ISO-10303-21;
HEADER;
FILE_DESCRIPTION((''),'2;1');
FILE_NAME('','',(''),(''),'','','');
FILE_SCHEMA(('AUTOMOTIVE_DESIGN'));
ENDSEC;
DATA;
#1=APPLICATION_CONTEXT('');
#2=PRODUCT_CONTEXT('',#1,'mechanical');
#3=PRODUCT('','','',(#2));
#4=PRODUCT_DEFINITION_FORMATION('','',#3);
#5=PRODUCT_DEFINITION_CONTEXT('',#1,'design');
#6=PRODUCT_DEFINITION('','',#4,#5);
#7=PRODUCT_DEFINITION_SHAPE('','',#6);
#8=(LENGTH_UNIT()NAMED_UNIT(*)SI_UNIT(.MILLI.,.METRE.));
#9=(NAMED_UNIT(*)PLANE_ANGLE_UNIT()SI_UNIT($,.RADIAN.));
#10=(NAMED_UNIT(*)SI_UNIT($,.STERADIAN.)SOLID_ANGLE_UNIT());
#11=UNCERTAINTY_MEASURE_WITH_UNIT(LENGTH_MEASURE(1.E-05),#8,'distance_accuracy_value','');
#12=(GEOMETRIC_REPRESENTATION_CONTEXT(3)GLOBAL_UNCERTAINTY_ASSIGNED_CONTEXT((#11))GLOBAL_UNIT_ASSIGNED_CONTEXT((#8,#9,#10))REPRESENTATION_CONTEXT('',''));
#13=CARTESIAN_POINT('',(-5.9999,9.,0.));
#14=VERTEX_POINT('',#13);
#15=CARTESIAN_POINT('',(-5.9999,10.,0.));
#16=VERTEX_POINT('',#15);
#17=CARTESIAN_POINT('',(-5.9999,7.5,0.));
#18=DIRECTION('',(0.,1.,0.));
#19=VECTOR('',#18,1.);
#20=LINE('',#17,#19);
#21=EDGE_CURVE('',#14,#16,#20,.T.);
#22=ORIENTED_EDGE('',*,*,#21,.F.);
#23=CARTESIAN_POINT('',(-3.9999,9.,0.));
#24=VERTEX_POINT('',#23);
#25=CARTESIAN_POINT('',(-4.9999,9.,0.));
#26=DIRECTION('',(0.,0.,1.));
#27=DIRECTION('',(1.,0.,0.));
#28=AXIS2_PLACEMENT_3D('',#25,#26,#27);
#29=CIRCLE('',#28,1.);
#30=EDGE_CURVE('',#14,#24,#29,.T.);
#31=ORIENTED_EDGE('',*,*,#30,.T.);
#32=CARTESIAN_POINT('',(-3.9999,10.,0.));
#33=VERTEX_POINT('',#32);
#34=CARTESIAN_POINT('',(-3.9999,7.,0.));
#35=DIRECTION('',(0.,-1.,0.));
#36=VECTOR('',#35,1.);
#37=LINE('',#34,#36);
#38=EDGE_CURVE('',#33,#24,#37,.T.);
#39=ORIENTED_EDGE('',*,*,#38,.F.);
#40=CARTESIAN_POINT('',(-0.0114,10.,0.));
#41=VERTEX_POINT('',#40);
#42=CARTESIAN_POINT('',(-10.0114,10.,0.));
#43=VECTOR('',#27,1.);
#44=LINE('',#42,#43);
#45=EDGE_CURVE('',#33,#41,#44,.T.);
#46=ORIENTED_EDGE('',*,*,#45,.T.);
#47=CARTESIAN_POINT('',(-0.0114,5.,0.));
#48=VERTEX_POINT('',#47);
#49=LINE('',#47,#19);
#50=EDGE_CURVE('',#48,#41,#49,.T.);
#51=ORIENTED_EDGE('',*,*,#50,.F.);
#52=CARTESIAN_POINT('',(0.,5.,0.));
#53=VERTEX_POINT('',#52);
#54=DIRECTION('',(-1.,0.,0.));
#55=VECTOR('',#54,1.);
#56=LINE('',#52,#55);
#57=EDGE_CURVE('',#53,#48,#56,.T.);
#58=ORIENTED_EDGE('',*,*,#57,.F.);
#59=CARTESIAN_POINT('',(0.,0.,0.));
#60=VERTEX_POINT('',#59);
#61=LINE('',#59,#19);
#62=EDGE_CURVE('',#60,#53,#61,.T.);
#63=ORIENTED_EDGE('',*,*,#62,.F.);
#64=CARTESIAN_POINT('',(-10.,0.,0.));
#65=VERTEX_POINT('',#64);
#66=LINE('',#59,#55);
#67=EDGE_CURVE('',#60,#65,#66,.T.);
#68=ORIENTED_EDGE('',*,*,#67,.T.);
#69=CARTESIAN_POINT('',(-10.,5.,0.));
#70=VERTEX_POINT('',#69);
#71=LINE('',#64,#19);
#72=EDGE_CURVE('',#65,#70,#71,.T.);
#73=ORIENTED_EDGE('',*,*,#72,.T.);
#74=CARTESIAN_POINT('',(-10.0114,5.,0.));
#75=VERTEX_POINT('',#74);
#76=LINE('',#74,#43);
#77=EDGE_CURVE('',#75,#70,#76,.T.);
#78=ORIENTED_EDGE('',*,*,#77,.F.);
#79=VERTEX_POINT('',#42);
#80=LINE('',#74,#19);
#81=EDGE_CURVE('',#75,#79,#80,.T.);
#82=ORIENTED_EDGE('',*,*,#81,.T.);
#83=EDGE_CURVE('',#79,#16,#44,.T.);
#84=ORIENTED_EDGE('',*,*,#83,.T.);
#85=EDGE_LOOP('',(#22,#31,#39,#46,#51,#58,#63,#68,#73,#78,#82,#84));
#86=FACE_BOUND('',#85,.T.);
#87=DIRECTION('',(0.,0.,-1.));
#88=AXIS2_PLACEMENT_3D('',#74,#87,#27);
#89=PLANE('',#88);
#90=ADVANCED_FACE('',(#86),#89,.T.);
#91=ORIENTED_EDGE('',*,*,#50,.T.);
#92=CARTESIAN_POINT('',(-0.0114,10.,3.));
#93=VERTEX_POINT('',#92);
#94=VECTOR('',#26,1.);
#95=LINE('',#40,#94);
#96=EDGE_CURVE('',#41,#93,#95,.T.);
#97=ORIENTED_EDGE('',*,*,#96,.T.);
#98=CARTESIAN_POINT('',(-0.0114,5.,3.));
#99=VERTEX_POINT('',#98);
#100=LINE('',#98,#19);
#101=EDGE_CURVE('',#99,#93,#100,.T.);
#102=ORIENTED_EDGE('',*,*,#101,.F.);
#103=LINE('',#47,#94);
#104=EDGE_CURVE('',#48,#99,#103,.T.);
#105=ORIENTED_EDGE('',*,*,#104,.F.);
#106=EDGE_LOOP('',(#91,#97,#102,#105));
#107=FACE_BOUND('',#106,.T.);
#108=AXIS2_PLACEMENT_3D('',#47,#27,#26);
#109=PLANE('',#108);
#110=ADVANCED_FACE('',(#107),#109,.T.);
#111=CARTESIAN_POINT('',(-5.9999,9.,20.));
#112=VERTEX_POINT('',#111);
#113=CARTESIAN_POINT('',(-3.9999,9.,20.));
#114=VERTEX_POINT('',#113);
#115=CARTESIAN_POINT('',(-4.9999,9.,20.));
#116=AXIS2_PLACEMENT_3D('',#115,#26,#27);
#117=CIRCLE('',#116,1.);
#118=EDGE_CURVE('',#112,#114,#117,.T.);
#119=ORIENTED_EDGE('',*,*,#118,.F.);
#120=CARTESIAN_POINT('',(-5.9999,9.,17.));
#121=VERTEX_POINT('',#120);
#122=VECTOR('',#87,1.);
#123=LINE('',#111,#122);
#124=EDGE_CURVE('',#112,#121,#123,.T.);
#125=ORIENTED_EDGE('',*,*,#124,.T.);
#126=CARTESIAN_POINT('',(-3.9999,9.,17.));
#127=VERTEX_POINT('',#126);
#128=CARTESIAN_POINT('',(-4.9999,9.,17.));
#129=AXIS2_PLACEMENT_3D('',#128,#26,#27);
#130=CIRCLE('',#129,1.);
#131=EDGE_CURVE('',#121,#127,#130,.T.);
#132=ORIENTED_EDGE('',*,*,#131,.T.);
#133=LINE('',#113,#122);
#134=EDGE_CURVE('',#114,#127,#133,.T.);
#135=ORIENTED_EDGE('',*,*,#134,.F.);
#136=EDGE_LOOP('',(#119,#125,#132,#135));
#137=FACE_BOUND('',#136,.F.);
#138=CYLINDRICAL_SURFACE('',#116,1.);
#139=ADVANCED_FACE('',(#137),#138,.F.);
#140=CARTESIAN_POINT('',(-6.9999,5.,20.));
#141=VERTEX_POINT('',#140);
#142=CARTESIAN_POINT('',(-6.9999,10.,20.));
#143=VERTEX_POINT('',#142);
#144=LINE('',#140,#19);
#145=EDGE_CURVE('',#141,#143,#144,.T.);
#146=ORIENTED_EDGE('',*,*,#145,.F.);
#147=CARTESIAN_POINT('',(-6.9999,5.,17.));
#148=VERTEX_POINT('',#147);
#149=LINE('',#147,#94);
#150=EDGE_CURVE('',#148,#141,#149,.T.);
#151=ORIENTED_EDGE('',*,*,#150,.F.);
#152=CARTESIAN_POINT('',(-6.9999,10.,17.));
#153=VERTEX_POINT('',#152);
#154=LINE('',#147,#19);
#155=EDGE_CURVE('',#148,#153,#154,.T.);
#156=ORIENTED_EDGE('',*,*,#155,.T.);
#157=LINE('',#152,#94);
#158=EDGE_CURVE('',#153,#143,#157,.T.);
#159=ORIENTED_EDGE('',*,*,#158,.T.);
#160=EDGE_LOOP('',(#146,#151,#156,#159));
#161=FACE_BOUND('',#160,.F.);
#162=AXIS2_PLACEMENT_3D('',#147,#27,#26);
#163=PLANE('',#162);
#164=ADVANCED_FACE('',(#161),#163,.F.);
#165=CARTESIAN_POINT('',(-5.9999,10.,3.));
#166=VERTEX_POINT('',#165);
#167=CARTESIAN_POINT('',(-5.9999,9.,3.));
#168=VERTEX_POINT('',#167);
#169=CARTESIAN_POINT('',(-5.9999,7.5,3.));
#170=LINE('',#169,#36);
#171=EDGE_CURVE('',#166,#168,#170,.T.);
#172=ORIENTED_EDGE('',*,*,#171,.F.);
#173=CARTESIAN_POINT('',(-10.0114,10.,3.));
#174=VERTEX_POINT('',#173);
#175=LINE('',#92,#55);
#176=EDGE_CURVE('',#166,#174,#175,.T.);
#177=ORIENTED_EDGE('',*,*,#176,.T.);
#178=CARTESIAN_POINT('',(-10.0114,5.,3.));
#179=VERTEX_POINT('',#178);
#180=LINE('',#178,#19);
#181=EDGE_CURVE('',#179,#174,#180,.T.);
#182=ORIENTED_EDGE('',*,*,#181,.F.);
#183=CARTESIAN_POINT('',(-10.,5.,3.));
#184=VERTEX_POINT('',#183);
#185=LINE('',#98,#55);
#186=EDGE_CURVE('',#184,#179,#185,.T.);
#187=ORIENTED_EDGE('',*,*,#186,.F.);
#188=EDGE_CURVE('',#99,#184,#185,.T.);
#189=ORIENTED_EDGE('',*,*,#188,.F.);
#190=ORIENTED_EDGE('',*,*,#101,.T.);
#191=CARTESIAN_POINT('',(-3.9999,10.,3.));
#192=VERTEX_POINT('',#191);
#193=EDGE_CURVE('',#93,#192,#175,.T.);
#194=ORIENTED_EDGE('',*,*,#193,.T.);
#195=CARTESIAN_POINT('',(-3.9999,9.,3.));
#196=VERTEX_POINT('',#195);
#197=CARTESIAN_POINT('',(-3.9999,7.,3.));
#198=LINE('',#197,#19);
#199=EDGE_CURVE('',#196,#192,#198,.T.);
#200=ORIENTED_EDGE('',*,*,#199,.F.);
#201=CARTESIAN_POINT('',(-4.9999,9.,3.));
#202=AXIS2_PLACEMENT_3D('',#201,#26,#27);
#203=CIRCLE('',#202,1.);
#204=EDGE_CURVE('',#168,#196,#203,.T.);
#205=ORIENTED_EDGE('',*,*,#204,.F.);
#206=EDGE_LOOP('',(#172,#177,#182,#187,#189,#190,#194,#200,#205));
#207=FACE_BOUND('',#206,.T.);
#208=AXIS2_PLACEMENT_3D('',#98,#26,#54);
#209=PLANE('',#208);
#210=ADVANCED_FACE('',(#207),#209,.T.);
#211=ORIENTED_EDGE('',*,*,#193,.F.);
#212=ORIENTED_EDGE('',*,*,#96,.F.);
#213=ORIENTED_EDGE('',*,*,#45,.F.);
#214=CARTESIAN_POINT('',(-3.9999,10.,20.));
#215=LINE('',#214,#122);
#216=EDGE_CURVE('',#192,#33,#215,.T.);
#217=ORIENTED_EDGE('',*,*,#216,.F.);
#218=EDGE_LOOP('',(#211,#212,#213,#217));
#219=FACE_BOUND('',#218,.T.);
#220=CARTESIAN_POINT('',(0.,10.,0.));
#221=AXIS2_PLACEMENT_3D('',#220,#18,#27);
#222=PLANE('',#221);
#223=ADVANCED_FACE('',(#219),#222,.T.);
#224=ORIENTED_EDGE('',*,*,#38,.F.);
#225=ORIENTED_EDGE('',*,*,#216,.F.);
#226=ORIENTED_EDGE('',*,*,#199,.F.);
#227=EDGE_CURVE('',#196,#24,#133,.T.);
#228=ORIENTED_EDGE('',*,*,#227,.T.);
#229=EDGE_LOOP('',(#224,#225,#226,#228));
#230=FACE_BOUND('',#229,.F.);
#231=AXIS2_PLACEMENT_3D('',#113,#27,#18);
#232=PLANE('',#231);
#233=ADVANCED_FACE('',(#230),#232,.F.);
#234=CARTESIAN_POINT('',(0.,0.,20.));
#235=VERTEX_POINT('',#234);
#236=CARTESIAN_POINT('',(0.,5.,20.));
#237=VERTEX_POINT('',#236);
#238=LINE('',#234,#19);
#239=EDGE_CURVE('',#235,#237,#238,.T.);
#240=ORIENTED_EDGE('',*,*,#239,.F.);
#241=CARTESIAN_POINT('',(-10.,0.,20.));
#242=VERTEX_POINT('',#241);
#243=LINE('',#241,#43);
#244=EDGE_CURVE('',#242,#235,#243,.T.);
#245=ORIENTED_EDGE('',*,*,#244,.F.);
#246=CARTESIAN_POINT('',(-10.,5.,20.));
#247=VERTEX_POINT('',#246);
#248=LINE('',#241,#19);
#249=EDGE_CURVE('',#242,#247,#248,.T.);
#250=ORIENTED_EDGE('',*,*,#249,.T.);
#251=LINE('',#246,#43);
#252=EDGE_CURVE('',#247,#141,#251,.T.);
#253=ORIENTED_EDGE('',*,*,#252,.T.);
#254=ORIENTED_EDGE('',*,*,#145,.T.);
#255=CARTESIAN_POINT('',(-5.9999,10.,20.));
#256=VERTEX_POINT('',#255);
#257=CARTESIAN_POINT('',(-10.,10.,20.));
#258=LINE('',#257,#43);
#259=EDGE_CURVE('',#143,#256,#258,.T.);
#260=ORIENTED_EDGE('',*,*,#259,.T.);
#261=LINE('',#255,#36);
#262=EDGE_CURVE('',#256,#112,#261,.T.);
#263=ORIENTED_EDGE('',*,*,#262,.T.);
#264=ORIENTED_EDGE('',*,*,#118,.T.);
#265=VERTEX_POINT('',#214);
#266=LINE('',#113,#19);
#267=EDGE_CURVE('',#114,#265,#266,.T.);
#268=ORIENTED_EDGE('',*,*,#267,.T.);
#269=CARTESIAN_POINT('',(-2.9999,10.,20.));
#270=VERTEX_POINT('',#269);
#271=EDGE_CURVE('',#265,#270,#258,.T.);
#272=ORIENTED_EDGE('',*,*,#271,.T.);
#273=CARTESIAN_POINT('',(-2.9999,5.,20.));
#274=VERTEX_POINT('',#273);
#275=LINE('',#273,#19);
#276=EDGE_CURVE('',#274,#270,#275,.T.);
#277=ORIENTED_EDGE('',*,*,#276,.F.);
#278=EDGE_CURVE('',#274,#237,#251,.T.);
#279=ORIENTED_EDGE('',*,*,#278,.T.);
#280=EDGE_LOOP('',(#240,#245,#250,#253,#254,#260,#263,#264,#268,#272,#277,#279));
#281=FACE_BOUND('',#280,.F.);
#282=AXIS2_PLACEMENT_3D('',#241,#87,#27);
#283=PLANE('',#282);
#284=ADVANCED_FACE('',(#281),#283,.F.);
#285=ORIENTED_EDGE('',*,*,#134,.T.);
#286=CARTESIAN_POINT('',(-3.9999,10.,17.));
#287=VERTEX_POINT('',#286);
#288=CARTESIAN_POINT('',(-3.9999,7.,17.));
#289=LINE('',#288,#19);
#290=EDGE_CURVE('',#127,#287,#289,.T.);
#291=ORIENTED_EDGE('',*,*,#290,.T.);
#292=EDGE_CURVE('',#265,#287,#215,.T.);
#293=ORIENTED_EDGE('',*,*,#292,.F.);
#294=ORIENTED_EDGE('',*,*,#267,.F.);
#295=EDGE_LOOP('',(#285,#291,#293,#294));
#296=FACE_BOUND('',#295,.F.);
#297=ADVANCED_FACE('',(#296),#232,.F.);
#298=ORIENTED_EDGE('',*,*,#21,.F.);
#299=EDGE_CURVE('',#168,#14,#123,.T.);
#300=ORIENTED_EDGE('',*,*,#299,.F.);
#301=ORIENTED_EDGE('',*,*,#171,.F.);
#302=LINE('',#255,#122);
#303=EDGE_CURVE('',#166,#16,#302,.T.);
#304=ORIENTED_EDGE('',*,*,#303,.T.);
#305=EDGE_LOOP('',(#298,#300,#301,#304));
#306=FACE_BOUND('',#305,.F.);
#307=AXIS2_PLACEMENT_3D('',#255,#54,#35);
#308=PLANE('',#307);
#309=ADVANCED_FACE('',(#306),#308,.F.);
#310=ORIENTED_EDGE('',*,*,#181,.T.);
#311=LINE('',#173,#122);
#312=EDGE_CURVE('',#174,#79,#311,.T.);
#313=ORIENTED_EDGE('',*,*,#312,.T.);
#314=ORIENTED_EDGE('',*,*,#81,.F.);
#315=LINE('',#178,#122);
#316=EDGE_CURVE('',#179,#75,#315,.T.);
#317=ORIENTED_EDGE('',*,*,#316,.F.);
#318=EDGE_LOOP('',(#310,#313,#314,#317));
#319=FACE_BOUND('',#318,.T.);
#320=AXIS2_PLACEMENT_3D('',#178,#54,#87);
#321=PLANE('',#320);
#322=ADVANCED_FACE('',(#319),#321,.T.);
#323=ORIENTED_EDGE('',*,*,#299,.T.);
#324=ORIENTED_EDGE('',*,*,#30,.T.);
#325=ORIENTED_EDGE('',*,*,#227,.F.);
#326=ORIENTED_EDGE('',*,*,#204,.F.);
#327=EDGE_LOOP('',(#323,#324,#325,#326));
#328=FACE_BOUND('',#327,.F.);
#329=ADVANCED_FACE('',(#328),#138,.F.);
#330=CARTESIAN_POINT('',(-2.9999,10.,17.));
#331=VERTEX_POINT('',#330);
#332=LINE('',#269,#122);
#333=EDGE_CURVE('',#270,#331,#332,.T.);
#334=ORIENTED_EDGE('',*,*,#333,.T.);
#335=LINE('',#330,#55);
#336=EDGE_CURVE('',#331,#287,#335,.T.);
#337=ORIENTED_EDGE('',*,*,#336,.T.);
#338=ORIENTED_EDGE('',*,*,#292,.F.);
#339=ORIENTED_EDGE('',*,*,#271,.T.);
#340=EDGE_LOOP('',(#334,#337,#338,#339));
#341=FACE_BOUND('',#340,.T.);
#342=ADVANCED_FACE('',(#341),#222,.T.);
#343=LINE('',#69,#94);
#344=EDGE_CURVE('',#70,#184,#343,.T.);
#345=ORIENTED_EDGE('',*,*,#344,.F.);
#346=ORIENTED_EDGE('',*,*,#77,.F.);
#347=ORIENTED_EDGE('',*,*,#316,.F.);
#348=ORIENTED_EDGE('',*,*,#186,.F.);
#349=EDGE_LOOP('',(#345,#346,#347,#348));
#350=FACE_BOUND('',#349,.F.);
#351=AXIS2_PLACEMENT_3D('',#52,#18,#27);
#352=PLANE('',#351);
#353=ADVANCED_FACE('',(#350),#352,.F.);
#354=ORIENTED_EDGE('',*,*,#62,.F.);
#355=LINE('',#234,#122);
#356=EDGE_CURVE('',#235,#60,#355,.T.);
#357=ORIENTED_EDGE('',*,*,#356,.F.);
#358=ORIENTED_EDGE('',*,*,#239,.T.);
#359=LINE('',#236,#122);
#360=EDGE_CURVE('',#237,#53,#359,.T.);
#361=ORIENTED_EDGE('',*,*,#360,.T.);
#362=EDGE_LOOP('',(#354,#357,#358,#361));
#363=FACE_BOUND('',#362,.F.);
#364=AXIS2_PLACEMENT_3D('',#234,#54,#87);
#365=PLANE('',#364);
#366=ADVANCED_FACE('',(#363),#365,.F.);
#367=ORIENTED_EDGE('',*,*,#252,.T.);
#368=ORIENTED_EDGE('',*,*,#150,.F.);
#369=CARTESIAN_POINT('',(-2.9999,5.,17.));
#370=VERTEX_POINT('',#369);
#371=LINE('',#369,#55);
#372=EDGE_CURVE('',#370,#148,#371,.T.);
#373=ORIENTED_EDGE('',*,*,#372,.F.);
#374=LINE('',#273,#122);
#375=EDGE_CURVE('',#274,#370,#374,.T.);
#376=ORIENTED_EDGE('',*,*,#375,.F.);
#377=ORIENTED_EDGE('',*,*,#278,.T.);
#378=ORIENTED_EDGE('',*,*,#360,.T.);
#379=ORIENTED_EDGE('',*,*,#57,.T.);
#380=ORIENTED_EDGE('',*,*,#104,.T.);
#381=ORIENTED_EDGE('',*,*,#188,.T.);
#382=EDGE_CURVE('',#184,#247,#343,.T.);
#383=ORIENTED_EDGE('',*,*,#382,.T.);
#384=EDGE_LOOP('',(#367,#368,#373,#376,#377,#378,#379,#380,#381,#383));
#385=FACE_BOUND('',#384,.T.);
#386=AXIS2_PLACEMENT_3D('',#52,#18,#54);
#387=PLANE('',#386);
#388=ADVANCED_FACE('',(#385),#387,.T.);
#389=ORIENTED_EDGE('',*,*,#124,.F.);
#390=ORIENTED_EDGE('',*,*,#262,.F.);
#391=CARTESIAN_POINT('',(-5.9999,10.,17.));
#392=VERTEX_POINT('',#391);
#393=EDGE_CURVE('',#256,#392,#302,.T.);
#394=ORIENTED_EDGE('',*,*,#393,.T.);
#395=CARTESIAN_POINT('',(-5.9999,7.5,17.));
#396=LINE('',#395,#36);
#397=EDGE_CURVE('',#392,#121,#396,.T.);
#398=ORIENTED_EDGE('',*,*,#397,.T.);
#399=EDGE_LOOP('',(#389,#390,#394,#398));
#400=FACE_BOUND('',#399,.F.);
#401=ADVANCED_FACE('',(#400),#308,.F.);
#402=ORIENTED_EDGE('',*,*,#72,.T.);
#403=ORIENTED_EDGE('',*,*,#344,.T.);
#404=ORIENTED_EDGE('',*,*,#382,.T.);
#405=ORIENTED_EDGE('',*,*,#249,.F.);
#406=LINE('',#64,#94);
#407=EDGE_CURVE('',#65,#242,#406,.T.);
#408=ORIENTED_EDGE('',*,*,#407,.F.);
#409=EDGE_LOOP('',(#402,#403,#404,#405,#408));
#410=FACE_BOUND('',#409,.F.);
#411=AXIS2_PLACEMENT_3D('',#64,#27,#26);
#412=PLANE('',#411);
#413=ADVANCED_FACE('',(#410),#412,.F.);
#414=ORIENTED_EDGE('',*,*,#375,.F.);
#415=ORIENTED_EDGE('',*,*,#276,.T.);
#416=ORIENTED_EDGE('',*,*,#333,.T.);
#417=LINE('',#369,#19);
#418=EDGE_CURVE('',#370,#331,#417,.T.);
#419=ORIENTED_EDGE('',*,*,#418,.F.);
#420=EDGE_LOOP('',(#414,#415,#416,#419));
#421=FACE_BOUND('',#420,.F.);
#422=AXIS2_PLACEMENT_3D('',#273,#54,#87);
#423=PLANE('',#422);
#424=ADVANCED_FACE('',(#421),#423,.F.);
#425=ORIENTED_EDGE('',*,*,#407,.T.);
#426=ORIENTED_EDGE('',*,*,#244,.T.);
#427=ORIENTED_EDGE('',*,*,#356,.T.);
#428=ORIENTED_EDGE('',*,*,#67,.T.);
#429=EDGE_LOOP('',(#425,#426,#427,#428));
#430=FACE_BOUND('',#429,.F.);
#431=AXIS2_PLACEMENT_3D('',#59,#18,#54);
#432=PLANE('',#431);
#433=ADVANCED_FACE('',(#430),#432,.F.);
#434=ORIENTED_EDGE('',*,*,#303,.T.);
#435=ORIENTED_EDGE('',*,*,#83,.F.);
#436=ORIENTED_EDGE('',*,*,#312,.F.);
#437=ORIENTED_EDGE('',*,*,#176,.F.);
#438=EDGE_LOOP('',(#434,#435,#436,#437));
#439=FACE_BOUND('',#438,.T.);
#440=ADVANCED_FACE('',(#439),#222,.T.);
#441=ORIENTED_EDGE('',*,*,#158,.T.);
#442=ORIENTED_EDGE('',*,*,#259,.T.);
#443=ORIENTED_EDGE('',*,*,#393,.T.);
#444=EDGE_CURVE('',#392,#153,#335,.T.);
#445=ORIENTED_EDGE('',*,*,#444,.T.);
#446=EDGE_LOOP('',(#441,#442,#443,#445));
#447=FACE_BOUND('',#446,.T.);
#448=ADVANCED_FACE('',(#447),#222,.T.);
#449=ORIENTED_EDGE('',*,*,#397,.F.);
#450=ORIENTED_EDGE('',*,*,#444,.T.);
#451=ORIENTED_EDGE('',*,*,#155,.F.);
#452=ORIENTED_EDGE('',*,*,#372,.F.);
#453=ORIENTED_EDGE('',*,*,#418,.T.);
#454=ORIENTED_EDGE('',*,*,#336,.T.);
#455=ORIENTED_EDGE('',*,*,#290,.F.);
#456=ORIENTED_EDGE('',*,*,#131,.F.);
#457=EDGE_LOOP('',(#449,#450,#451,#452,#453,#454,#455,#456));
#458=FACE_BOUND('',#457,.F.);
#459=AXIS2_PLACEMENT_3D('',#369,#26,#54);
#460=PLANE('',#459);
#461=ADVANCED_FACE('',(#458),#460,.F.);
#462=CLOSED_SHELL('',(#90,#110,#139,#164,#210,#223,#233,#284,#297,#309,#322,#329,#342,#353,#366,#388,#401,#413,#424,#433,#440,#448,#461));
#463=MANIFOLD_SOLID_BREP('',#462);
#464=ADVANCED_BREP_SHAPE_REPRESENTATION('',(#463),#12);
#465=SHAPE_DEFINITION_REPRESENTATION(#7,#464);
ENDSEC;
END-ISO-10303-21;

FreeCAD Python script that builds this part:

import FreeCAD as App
import Part
import Sketcher
Q = App.Units.Quantity


def add_polygon(sketch, points):
    """Adds a closed chain of lines whose ends are joined by coincident constraints."""
    first, n = sketch.GeometryCount, len(points)
    for a, b in zip(points, points[1:] + points[:1]):
        sketch.addGeometry(Part.LineSegment(App.Vector(*a, 0), App.Vector(*b, 0)), False)
    for i in range(n):
        sketch.addConstraint(Sketcher.Constraint("Coincident", first + i, 2, first + (i + 1) % n, 1))

doc = App.newDocument("Part")
body = doc.addObject("PartDesign::Body", "Body")

sketch1 = doc.addObject("Sketcher::SketchObject", "Sketch")
body.addObject(sketch1)
sketch1.AttachmentSupport = (doc.XZ_Plane, [""])
sketch1.MapMode = "FlatFace"
add_polygon(sketch1, [(0, 20), (0, 0), (-10, 0), (-10, 20)])
sketch1.addConstraint([
    Sketcher.Constraint("Vertical", 0),
    Sketcher.Constraint("Horizontal", 1),
    Sketcher.Constraint("Vertical", 2),
    Sketcher.Constraint("Horizontal", 3),
    Sketcher.Constraint("Coincident", 0, 2, -1, 1),
    Sketcher.Constraint("DistanceX", 1, 2, 1, 1, Q("10 mm")),
    Sketcher.Constraint("DistanceY", 0, 2, 0, 1, Q("20 mm")),
])
pad1 = doc.addObject("PartDesign::Pad", "Pad")
body.addObject(pad1)
pad1.Profile = sketch1
pad1.Length = 5
pad1.Reversed = True

sketch2 = doc.addObject("Sketcher::SketchObject", "Sketch001")
body.addObject(sketch2)
sketch2.AttachmentSupport = (doc.XZ_Plane, [""])
sketch2.MapMode = "FlatFace"
sketch2.AttachmentOffset = App.Placement(App.Vector(0, 0, -5), App.Rotation())
add_polygon(sketch2, [(-7, 17), (-7, 20), (-3, 20), (-3, 17)])
sketch2.addConstraint([
    Sketcher.Constraint("Vertical", 0),
    Sketcher.Constraint("Horizontal", 1),
    Sketcher.Constraint("Vertical", 2),
    Sketcher.Constraint("Horizontal", 3),
    Sketcher.Constraint("DistanceX", 1, 1, 1, 2, Q("4 mm")),
    Sketcher.Constraint("DistanceY", 0, 1, 0, 2, Q("3 mm")),
    Sketcher.Constraint("DistanceX", 1, 2, -1, 1, Q("3 mm")),
    Sketcher.Constraint("DistanceY", -1, 1, 0, 2, Q("20 mm")),
])
pad2 = doc.addObject("PartDesign::Pad", "Pad001")
body.addObject(pad2)
pad2.Profile = sketch2
pad2.Length = 5
pad2.Reversed = True

sketch3 = doc.addObject("Sketcher::SketchObject", "Sketch002")
body.addObject(sketch3)
sketch3.AttachmentSupport = (doc.XZ_Plane, [""])
sketch3.MapMode = "FlatFace"
sketch3.AttachmentOffset = App.Placement(App.Vector(0, 0, -5), App.Rotation())
add_polygon(sketch3, [(0, 0), (-10, 0), (-10, 3), (0, 3)])
sketch3.addConstraint([
    Sketcher.Constraint("Horizontal", 0),
    Sketcher.Constraint("Vertical", 1),
    Sketcher.Constraint("Horizontal", 2),
    Sketcher.Constraint("Vertical", 3),
    Sketcher.Constraint("PointOnObject", 0, 2, -1),
    Sketcher.Constraint("DistanceX", 0, 2, 0, 1, Q("10 mm")),
    Sketcher.Constraint("DistanceY", 1, 1, 1, 2, Q("3 mm")),
    Sketcher.Constraint("DistanceX", 0, 2, -1, 1, Q("10.0114 mm")),
])
pad3 = doc.addObject("PartDesign::Pad", "Pad002")
body.addObject(pad3)
pad3.Profile = sketch3
pad3.Length = 5
pad3.Reversed = True

sketch4 = doc.addObject("Sketcher::SketchObject", "Sketch003")
body.addObject(sketch4)
sketch4.AttachmentSupport = (doc.XY_Plane, [""])
sketch4.MapMode = "FlatFace"
sketch4.AttachmentOffset = App.Placement(App.Vector(0, 0, 20), App.Rotation())
sketch4.addGeometry(Part.Circle(App.Vector(-5, 9, 0), App.Vector(0, 0, 1), 1), False)
sketch4.addConstraint([
    Sketcher.Constraint("Diameter", 0, Q("2 mm")),
    Sketcher.Constraint("DistanceX", 0, 3, -1, 1, Q("5 mm")),
    Sketcher.Constraint("DistanceY", -1, 1, 0, 3, Q("9 mm")),
])
pocket1 = doc.addObject("PartDesign::Pocket", "Pocket")
body.addObject(pocket1)
pocket1.Profile = sketch4
pocket1.Length = 21.9875

sketch5 = doc.addObject("Sketcher::SketchObject", "Sketch004")
body.addObject(sketch5)
sketch5.AttachmentSupport = (doc.XY_Plane, [""])
sketch5.MapMode = "FlatFace"
sketch5.AttachmentOffset = App.Placement(App.Vector(0, 0, 20), App.Rotation())
add_polygon(sketch5, [(-6, 10), (-6, 9), (-4, 9), (-4, 10)])
sketch5.addConstraint([
    Sketcher.Constraint("Vertical", 0),
    Sketcher.Constraint("Horizontal", 1),
    Sketcher.Constraint("Vertical", 2),
    Sketcher.Constraint("Horizontal", 3),
    Sketcher.Constraint("DistanceX", 1, 1, 1, 2, Q("2 mm")),
    Sketcher.Constraint("DistanceY", 0, 2, 0, 1, Q("1 mm")),
    Sketcher.Constraint("DistanceX", 0, 2, -1, 1, Q("6 mm")),
    Sketcher.Constraint("DistanceY", -1, 1, 0, 2, Q("9 mm")),
])
pocket2 = doc.addObject("PartDesign::Pocket", "Pocket001")
body.addObject(pocket2)
pocket2.Profile = sketch5
pocket2.Length = 22.4625

sketch6 = doc.addObject("Sketcher::SketchObject", "Sketch005")
body.addObject(sketch6)
sketch6.AttachmentSupport = (doc.XY_Plane, [""])
sketch6.MapMode = "FlatFace"
sketch6.AttachmentOffset = App.Placement(App.Vector(0, 0, 20), App.Rotation())
add_polygon(sketch6, [(-6, 10.4), (-6, 9), (-4, 9), (-4, 10.4)])
sketch6.addConstraint([
    Sketcher.Constraint("Vertical", 0),
    Sketcher.Constraint("Horizontal", 1),
    Sketcher.Constraint("Vertical", 2),
    Sketcher.Constraint("Horizontal", 3),
    Sketcher.Constraint("DistanceX", 1, 1, 1, 2, Q("2 mm")),
    Sketcher.Constraint("DistanceX", 0, 2, -1, 1, Q("6 mm")),
    Sketcher.Constraint("DistanceY", -1, 1, 0, 2, Q("9 mm")),
    Sketcher.Constraint("DistanceY", 0, 2, 0, 1, Q("1.393 mm")),
])
pocket3 = doc.addObject("PartDesign::Pocket", "Pocket002")
body.addObject(pocket3)
pocket3.Profile = sketch6
pocket3.Length = 25.1625

doc.recompute()
